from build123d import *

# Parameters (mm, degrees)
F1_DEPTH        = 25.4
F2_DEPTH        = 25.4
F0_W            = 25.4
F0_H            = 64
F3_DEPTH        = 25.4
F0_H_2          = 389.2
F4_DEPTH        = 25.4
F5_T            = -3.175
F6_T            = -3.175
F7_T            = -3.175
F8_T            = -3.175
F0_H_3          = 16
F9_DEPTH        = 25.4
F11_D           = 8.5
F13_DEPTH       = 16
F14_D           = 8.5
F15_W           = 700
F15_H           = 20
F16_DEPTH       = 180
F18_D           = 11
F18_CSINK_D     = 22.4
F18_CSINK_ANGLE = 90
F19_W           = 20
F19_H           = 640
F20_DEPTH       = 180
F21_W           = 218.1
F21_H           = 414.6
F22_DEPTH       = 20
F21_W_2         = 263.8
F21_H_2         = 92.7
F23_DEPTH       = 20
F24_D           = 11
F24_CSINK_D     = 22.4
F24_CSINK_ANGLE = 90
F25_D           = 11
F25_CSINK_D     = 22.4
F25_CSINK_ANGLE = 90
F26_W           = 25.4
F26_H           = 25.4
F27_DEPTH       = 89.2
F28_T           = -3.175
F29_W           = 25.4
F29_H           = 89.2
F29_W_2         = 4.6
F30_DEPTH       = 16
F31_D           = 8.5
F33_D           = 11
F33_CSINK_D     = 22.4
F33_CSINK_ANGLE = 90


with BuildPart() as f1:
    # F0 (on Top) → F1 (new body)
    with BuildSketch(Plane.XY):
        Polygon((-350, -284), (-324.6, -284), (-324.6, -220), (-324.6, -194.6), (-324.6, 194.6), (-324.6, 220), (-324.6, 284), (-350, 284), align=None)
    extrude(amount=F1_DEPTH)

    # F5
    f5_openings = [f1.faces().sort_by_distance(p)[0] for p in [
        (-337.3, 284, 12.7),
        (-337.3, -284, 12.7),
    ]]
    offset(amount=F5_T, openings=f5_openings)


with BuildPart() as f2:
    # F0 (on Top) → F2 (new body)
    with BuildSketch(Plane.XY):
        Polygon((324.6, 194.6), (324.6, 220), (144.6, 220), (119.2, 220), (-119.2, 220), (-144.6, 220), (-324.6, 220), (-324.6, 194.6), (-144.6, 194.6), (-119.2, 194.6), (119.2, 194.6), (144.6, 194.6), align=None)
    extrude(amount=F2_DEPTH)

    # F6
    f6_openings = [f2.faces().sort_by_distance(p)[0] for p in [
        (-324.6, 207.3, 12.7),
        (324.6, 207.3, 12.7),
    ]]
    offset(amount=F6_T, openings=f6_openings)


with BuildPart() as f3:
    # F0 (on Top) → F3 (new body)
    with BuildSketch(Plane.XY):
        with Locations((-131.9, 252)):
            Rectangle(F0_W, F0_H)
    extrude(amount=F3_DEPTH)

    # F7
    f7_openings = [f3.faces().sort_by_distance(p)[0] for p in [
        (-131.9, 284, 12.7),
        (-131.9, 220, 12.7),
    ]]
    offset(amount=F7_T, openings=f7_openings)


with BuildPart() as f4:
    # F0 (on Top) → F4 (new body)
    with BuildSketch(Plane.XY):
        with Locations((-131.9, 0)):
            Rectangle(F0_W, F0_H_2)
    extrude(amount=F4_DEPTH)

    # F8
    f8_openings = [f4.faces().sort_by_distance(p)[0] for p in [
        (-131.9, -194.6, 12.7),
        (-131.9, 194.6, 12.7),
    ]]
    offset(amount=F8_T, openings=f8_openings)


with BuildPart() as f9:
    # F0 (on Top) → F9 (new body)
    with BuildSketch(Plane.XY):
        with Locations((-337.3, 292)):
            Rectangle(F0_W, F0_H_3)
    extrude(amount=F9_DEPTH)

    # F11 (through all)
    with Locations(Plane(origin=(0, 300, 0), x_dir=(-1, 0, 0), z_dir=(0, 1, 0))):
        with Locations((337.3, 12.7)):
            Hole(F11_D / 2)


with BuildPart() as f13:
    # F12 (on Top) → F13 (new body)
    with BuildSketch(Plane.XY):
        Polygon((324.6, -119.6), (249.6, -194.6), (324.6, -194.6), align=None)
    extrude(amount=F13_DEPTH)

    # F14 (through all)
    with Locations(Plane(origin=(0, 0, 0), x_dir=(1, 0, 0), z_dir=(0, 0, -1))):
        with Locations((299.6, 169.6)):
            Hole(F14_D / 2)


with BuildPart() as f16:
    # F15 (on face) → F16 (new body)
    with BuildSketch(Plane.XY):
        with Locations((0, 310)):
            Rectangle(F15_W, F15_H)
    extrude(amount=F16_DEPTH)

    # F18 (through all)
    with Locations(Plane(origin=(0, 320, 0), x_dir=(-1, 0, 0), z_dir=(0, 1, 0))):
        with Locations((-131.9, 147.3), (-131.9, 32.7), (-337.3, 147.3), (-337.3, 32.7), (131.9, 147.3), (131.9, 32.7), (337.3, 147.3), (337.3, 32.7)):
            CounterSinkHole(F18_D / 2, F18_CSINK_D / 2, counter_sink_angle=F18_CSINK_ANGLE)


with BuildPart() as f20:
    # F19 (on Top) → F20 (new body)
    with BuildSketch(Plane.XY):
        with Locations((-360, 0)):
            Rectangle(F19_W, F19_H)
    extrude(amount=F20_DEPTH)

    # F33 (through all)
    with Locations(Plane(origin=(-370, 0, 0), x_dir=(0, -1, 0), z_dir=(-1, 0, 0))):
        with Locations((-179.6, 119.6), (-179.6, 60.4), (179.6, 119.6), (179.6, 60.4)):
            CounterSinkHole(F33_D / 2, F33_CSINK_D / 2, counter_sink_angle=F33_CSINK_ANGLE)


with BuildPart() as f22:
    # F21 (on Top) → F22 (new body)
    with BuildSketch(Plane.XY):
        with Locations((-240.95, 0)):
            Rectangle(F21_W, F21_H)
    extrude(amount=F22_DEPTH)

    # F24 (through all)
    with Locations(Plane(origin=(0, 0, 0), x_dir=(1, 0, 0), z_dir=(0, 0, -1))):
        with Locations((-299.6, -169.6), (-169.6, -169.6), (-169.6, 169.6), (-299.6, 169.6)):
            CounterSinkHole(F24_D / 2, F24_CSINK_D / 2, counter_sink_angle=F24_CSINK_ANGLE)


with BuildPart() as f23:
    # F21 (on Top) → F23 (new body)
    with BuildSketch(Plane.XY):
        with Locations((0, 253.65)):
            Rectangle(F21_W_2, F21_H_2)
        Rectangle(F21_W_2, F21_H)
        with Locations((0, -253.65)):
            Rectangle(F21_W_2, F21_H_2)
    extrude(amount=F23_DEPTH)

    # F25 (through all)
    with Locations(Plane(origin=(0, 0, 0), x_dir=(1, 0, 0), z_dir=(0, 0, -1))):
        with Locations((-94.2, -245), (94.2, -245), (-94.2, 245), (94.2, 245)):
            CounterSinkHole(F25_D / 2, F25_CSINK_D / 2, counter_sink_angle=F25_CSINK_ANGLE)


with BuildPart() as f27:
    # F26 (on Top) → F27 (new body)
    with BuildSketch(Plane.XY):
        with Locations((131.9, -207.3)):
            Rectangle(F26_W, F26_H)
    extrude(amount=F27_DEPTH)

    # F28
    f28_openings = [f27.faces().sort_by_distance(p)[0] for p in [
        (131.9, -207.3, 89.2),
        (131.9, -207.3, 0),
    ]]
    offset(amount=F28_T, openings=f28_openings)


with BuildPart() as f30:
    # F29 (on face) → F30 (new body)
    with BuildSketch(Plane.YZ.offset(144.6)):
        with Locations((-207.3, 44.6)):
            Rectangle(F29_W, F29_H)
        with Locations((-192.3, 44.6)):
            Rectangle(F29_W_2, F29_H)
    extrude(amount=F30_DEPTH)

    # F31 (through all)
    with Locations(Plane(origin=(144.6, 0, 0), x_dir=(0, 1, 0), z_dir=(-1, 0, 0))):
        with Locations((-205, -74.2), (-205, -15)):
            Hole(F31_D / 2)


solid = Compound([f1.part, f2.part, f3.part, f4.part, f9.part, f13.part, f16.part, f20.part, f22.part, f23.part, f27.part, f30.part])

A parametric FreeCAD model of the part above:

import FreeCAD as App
import Part
import Sketcher
from FreeCAD import Vector
Q = App.Units.Quantity


def faces_at(feature, points):
    """Names of the faces that lie closest to the given points."""
    faces = feature.Shape.Faces
    near = lambda p: min(range(len(faces)), key=lambda i: faces[i].distToShape(Part.Vertex(*p))[0])
    return sorted({f"Face{near(p) + 1}" for p in points})


def add_polygon(sketch, points):
    """Adds a closed chain of lines whose ends are joined by coincident constraints."""
    first, n = sketch.GeometryCount, len(points)
    for a, b in zip(points, points[1:] + points[:1]):
        sketch.addGeometry(Part.LineSegment(App.Vector(*a, 0), App.Vector(*b, 0)), False)
    for i in range(n):
        sketch.addConstraint(Sketcher.Constraint("Coincident", first + i, 2, first + (i + 1) % n, 1))

doc = App.newDocument("Part")
body = doc.addObject("PartDesign::Body", "Body")

# Sketch on XY plane
sketch1 = body.newObject("Sketcher::SketchObject", "Sketch")
sketch1.AttachmentSupport = (doc.getObject("XY_Plane"), [""])
sketch1.MapMode = "FlatFace"
add_polygon(sketch1, [(-350, -284), (-325, -284), (-325, 284), (-350, 284)])  # lines 0-3
sketch1.addConstraint([
    Sketcher.Constraint("Horizontal", 0),
    Sketcher.Constraint("Vertical", 1),
    Sketcher.Constraint("Horizontal", 2),
    Sketcher.Constraint("Vertical", 3),
    Sketcher.Constraint("DistanceY", 1, 1, 1, 2, Q("568 mm")),
    Sketcher.Constraint("DistanceX", 0, 1, 0, 2, Q("25.4 mm")),
    Sketcher.Constraint("DistanceY", 0, 2, -1, 1, Q("284 mm")),
    Sketcher.Constraint("DistanceX", 2, 2, -1, 1, Q("350 mm")),
])
pad1 = body.newObject("PartDesign::Pad", "Pad")
pad1.Profile = sketch1
pad1.Length = 25.4
doc.recompute()

thickness = body.newObject("PartDesign::Thickness", "Thickness")
thickness.Base = (pad1, faces_at(pad1, [(-337.3, 284, 12.7), (-337.3, -284, 12.7)]))
thickness.Value = 3.175
thickness.Reversed = True
thickness.Join = "Arc"
body2 = doc.addObject("PartDesign::Body", "Body001")

# Sketch on XY plane
sketch2 = body2.newObject("Sketcher::SketchObject", "Sketch001")
sketch2.AttachmentSupport = (doc.getObject("XY_Plane001"), [""])
sketch2.MapMode = "FlatFace"
add_polygon(sketch2, [(325, 195), (325, 220), (-325, 220), (-325, 195)])  # lines 0-3
sketch2.addConstraint([
    Sketcher.Constraint("Vertical", 0),
    Sketcher.Constraint("Horizontal", 1),
    Sketcher.Constraint("Vertical", 2),
    Sketcher.Constraint("Horizontal", 3),
    Sketcher.Constraint("DistanceX", 1, 2, 1, 1, Q("649.2 mm")),
    Sketcher.Constraint("DistanceY", 0, 1, 0, 2, Q("25.4 mm")),
    Sketcher.Constraint("DistanceY", -1, 1, 0, 2, Q("220 mm")),
    Sketcher.Constraint("DistanceX", -1, 1, 0, 2, Q("324.6 mm")),
])
pad2 = body2.newObject("PartDesign::Pad", "Pad001")
pad2.Profile = sketch2
pad2.Length = 25.4
doc.recompute()

thickness2 = body2.newObject("PartDesign::Thickness", "Thickness001")
thickness2.Base = (pad2, faces_at(pad2, [(-324.6, 207.3, 12.7), (324.6, 207.3, 12.7)]))
thickness2.Value = 3.175
thickness2.Reversed = True
thickness2.Join = "Arc"
body3 = doc.addObject("PartDesign::Body", "Body002")

# Sketch on XY plane
sketch3 = body3.newObject("Sketcher::SketchObject", "Sketch002")
sketch3.AttachmentSupport = (doc.getObject("XY_Plane002"), [""])
sketch3.MapMode = "FlatFace"
add_polygon(sketch3, [(-145, 284), (-145, 220), (-119, 220), (-119, 284)])  # lines 0-3
sketch3.addConstraint([
    Sketcher.Constraint("Vertical", 0),
    Sketcher.Constraint("Horizontal", 1),
    Sketcher.Constraint("Vertical", 2),
    Sketcher.Constraint("Horizontal", 3),
    Sketcher.Constraint("DistanceY", 0, 2, 0, 1, Q("64 mm")),
    Sketcher.Constraint("DistanceX", 1, 1, 1, 2, Q("25.4 mm")),
    Sketcher.Constraint("DistanceY", -1, 1, 0, 2, Q("220 mm")),
    Sketcher.Constraint("DistanceX", 0, 2, -1, 1, Q("144.6 mm")),
])
pad3 = body3.newObject("PartDesign::Pad", "Pad002")
pad3.Profile = sketch3
pad3.Length = 25.4
doc.recompute()

thickness3 = body3.newObject("PartDesign::Thickness", "Thickness002")
thickness3.Base = (pad3, faces_at(pad3, [(-131.9, 284, 12.7), (-131.9, 220, 12.7)]))
thickness3.Value = 3.175
thickness3.Reversed = True
thickness3.Join = "Arc"
body4 = doc.addObject("PartDesign::Body", "Body003")

# Sketch on XY plane
sketch4 = body4.newObject("Sketcher::SketchObject", "Sketch003")
sketch4.AttachmentSupport = (doc.getObject("XY_Plane003"), [""])
sketch4.MapMode = "FlatFace"
add_polygon(sketch4, [(-145, 195), (-145, -195), (-119, -195), (-119, 195)])  # lines 0-3
sketch4.addConstraint([
    Sketcher.Constraint("Vertical", 0),
    Sketcher.Constraint("Horizontal", 1),
    Sketcher.Constraint("Vertical", 2),
    Sketcher.Constraint("Horizontal", 3),
    Sketcher.Constraint("DistanceX", 1, 1, 1, 2, Q("25.4 mm")),
    Sketcher.Constraint("DistanceY", 0, 2, 0, 1, Q("389.2 mm")),
    Sketcher.Constraint("DistanceX", 0, 2, -1, 1, Q("144.6 mm")),
    Sketcher.Constraint("DistanceY", 0, 2, -1, 1, Q("194.6 mm")),
])
pad4 = body4.newObject("PartDesign::Pad", "Pad003")
pad4.Profile = sketch4
pad4.Length = 25.4
doc.recompute()

thickness4 = body4.newObject("PartDesign::Thickness", "Thickness003")
thickness4.Base = (pad4, faces_at(pad4, [(-131.9, -194.6, 12.7), (-131.9, 194.6, 12.7)]))
thickness4.Value = 3.175
thickness4.Reversed = True
thickness4.Join = "Arc"
body5 = doc.addObject("PartDesign::Body", "Body004")

# Sketch on XY plane
sketch5 = body5.newObject("Sketcher::SketchObject", "Sketch004")
sketch5.AttachmentSupport = (doc.getObject("XY_Plane004"), [""])
sketch5.MapMode = "FlatFace"
add_polygon(sketch5, [(-350, 300), (-350, 284), (-325, 284), (-325, 300)])  # lines 0-3
sketch5.addConstraint([
    Sketcher.Constraint("Vertical", 0),
    Sketcher.Constraint("Horizontal", 1),
    Sketcher.Constraint("Vertical", 2),
    Sketcher.Constraint("Horizontal", 3),
    Sketcher.Constraint("DistanceY", 0, 2, 0, 1, Q("16 mm")),
    Sketcher.Constraint("DistanceX", 1, 1, 1, 2, Q("25.4 mm")),
    Sketcher.Constraint("DistanceX", 0, 2, -1, 1, Q("350 mm")),
    Sketcher.Constraint("DistanceY", -1, 1, 0, 2, Q("284 mm")),
])
pad5 = body5.newObject("PartDesign::Pad", "Pad004")
pad5.Profile = sketch5
pad5.Length = 25.4

# Sketch on XZ plane
sketch6 = body5.newObject("Sketcher::SketchObject", "Sketch005")
sketch6.AttachmentSupport = (doc.getObject("XZ_Plane004"), [""])
sketch6.MapMode = "FlatFace"
sketch6.AttachmentOffset = App.Placement(Vector(0, 0, -300), App.Rotation())
sketch6.addGeometry(Part.Circle(Vector(-337.3, 12.7, 0), Vector(0, 0, 1), 4.2), False)
sketch6.addConstraint([
    Sketcher.Constraint("Diameter", 0, Q("8.5 mm")),
    Sketcher.Constraint("DistanceX", 0, 3, -1, 1, Q("337.3 mm")),
    Sketcher.Constraint("DistanceY", -1, 1, 0, 3, Q("12.7 mm")),
])
doc.recompute()
hole = body5.newObject("PartDesign::Hole", "Hole")
hole.Profile = sketch6
hole.ThreadType = "None"
hole.Diameter = 8.5
hole.DepthType = "ThroughAll"
hole.Reversed = True
body6 = doc.addObject("PartDesign::Body", "Body005")

# Sketch on XY plane
sketch7 = body6.newObject("Sketcher::SketchObject", "Sketch006")
sketch7.AttachmentSupport = (doc.getObject("XY_Plane005"), [""])
sketch7.MapMode = "FlatFace"
add_polygon(sketch7, [(325, -120), (250, -195), (325, -195)])  # lines 0-2
sketch7.addConstraint([
    Sketcher.Constraint("Horizontal", 1),
    Sketcher.Constraint("Vertical", 2),
    Sketcher.Constraint("Equal", 1, 2),
    Sketcher.Constraint("DistanceX", 1, 1, 1, 2, Q("75 mm")),
    Sketcher.Constraint("DistanceX", -1, 1, 0, 2, Q("249.6 mm")),
    Sketcher.Constraint("DistanceY", 0, 2, -1, 1, Q("194.6 mm")),
])
pad6 = body6.newObject("PartDesign::Pad", "Pad005")
pad6.Profile = sketch7
pad6.Length = 16

# Sketch on XY plane
sketch8 = body6.newObject("Sketcher::SketchObject", "Sketch007")
sketch8.AttachmentSupport = (doc.getObject("XY_Plane005"), [""])
sketch8.MapMode = "FlatFace"
sketch8.addGeometry(Part.Circle(Vector(299.6, -169.6, 0), Vector(0, 0, 1), 4.2), False)
sketch8.addConstraint([
    Sketcher.Constraint("Diameter", 0, Q("8.5 mm")),
    Sketcher.Constraint("DistanceX", -1, 1, 0, 3, Q("299.6 mm")),
    Sketcher.Constraint("DistanceY", 0, 3, -1, 1, Q("169.6 mm")),
])
doc.recompute()
hole2 = body6.newObject("PartDesign::Hole", "Hole001")
hole2.Profile = sketch8
hole2.ThreadType = "None"
hole2.Diameter = 8.5
hole2.DepthType = "ThroughAll"
hole2.Reversed = True
body7 = doc.addObject("PartDesign::Body", "Body006")

# Sketch on XY plane
sketch9 = body7.newObject("Sketcher::SketchObject", "Sketch008")
sketch9.AttachmentSupport = (doc.getObject("XY_Plane006"), [""])
sketch9.MapMode = "FlatFace"
add_polygon(sketch9, [(-350, 320), (-350, 300), (350, 300), (350, 320)])  # lines 0-3
sketch9.addConstraint([
    Sketcher.Constraint("Vertical", 0),
    Sketcher.Constraint("Horizontal", 1),
    Sketcher.Constraint("Vertical", 2),
    Sketcher.Constraint("Horizontal", 3),
    Sketcher.Constraint("DistanceX", 1, 1, 1, 2, Q("700 mm")),
    Sketcher.Constraint("DistanceY", 0, 2, 0, 1, Q("20 mm")),
    Sketcher.Constraint("DistanceX", 0, 2, -1, 1, Q("350 mm")),
    Sketcher.Constraint("DistanceY", -1, 1, 0, 2, Q("300 mm")),
])
pad7 = body7.newObject("PartDesign::Pad", "Pad006")
pad7.Profile = sketch9
pad7.Length = 180

# Sketch on XZ plane
sketch10 = body7.newObject("Sketcher::SketchObject", "Sketch009")
sketch10.AttachmentSupport = (doc.getObject("XZ_Plane006"), [""])
sketch10.MapMode = "FlatFace"
sketch10.AttachmentOffset = App.Placement(Vector(0, 0, -320), App.Rotation())
sketch10.addGeometry([
    Part.Circle(Vector(132, 147, 0), Vector(0, 0, 1), 6),  # 0
    Part.Circle(Vector(132, 33, 0), Vector(0, 0, 1), 6),  # 1
    Part.Circle(Vector(337, 147, 0), Vector(0, 0, 1), 6),  # 2
    Part.Circle(Vector(337, 33, 0), Vector(0, 0, 1), 6),  # 3
    Part.Circle(Vector(-132, 147, 0), Vector(0, 0, 1), 6),  # 4
    Part.Circle(Vector(-132, 33, 0), Vector(0, 0, 1), 6),  # 5
    Part.Circle(Vector(-337, 147, 0), Vector(0, 0, 1), 6),  # 6
    Part.Circle(Vector(-337, 33, 0), Vector(0, 0, 1), 6),  # 7
], False)
sketch10.addConstraint([
    Sketcher.Constraint("Equal", 0, 1),
    Sketcher.Constraint("Equal", 1, 2),
    Sketcher.Constraint("Equal", 2, 3),
    Sketcher.Constraint("Equal", 3, 4),
    Sketcher.Constraint("Equal", 4, 5),
    Sketcher.Constraint("Equal", 5, 6),
    Sketcher.Constraint("Equal", 6, 7),
    Sketcher.Constraint("Symmetric", 0, 3, 4, 3, -2),
    Sketcher.Constraint("Symmetric", 1, 3, 5, 3, -2),
    Sketcher.Constraint("Symmetric", 2, 3, 6, 3, -2),
    Sketcher.Constraint("Symmetric", 3, 3, 7, 3, -2),
    Sketcher.Constraint("Horizontal", 0, 3, 2, 3),
    Sketcher.Constraint("Horizontal", 1, 3, 3, 3),
    Sketcher.Constraint("Vertical", 0, 3, 1, 3),
    Sketcher.Constraint("Vertical", 2, 3, 3, 3),
    Sketcher.Constraint("Diameter", 0, Q("11 mm")),
    Sketcher.Constraint("DistanceX", -1, 1, 0, 3, Q("131.9 mm")),
    Sketcher.Constraint("DistanceY", -1, 1, 0, 3, Q("147.3 mm")),
    Sketcher.Constraint("DistanceY", -1, 1, 1, 3, Q("32.7 mm")),
    Sketcher.Constraint("DistanceX", -1, 1, 2, 3, Q("337.3 mm")),
])
doc.recompute()
hole3 = body7.newObject("PartDesign::Hole", "Hole002")
hole3.Profile = sketch10
hole3.ThreadType = "None"
hole3.Diameter = 11
hole3.DepthType = "ThroughAll"
hole3.HoleCutType = "Countersink"
hole3.HoleCutDiameter = 22.4
hole3.HoleCutCountersinkAngle = 90
hole3.Reversed = True
body8 = doc.addObject("PartDesign::Body", "Body007")

# Sketch on XY plane
sketch11 = body8.newObject("Sketcher::SketchObject", "Sketch010")
sketch11.AttachmentSupport = (doc.getObject("XY_Plane007"), [""])
sketch11.MapMode = "FlatFace"
add_polygon(sketch11, [(-370, 320), (-370, -320), (-350, -320), (-350, 320)])  # lines 0-3
sketch11.addConstraint([
    Sketcher.Constraint("Vertical", 0),
    Sketcher.Constraint("Horizontal", 1),
    Sketcher.Constraint("Vertical", 2),
    Sketcher.Constraint("Horizontal", 3),
    Sketcher.Constraint("DistanceX", 1, 1, 1, 2, Q("20 mm")),
    Sketcher.Constraint("DistanceY", 0, 2, 0, 1, Q("640 mm")),
    Sketcher.Constraint("DistanceX", 0, 2, -1, 1, Q("370 mm")),
    Sketcher.Constraint("DistanceY", 0, 2, -1, 1, Q("320 mm")),
])
pad8 = body8.newObject("PartDesign::Pad", "Pad007")
pad8.Profile = sketch11
pad8.Length = 180

# Sketch on YZ plane
sketch12 = body8.newObject("Sketcher::SketchObject", "Sketch011")
sketch12.AttachmentSupport = (doc.getObject("YZ_Plane007"), [""])
sketch12.MapMode = "FlatFace"
sketch12.AttachmentOffset = App.Placement(Vector(0, 0, -370), App.Rotation())
sketch12.addGeometry([
    Part.Circle(Vector(180, 120, 0), Vector(0, 0, 1), 6),
    Part.Circle(Vector(180, 60, 0), Vector(0, 0, 1), 6),
    Part.Circle(Vector(-180, 120, 0), Vector(0, 0, 1), 6),
    Part.Circle(Vector(-180, 60, 0), Vector(0, 0, 1), 6),
], False)
sketch12.addConstraint([
    Sketcher.Constraint("Equal", 0, 1),
    Sketcher.Constraint("Equal", 1, 2),
    Sketcher.Constraint("Equal", 2, 3),
    Sketcher.Constraint("Symmetric", 0, 3, 2, 3, -2),
    Sketcher.Constraint("Symmetric", 1, 3, 3, 3, -2),
    Sketcher.Constraint("Vertical", 0, 3, 1, 3),
    Sketcher.Constraint("Diameter", 0, Q("11 mm")),
    Sketcher.Constraint("DistanceX", -1, 1, 0, 3, Q("179.6 mm")),
    Sketcher.Constraint("DistanceY", -1, 1, 0, 3, Q("119.6 mm")),
    Sketcher.Constraint("DistanceY", -1, 1, 1, 3, Q("60.4 mm")),
])
doc.recompute()
hole4 = body8.newObject("PartDesign::Hole", "Hole003")
hole4.Profile = sketch12
hole4.ThreadType = "None"
hole4.Diameter = 11
hole4.DepthType = "ThroughAll"
hole4.HoleCutType = "Countersink"
hole4.HoleCutDiameter = 22.4
hole4.HoleCutCountersinkAngle = 90
hole4.Reversed = True
body9 = doc.addObject("PartDesign::Body", "Body008")

# Sketch on XY plane
sketch13 = body9.newObject("Sketcher::SketchObject", "Sketch012")
sketch13.AttachmentSupport = (doc.getObject("XY_Plane008"), [""])
sketch13.MapMode = "FlatFace"
add_polygon(sketch13, [(-350, 207), (-350, -207), (-132, -207), (-132, 207)])  # lines 0-3
sketch13.addConstraint([
    Sketcher.Constraint("Vertical", 0),
    Sketcher.Constraint("Horizontal", 1),
    Sketcher.Constraint("Vertical", 2),
    Sketcher.Constraint("Horizontal", 3),
    Sketcher.Constraint("DistanceX", 1, 1, 1, 2, Q("218.1 mm")),
    Sketcher.Constraint("DistanceY", 0, 2, 0, 1, Q("414.6 mm")),
    Sketcher.Constraint("DistanceX", 0, 2, -1, 1, Q("350 mm")),
    Sketcher.Constraint("DistanceY", 0, 2, -1, 1, Q("207.3 mm")),
])
pad9 = body9.newObject("PartDesign::Pad", "Pad008")
pad9.Profile = sketch13
pad9.Length = 20

# Sketch on XY plane
sketch14 = body9.newObject("Sketcher::SketchObject", "Sketch013")
sketch14.AttachmentSupport = (doc.getObject("XY_Plane008"), [""])
sketch14.MapMode = "FlatFace"
sketch14.addGeometry([
    Part.Circle(Vector(-300, 170, 0), Vector(0, 0, 1), 6),
    Part.Circle(Vector(-170, 170, 0), Vector(0, 0, 1), 6),
    Part.Circle(Vector(-170, -170, 0), Vector(0, 0, 1), 6),
    Part.Circle(Vector(-300, -170, 0), Vector(0, 0, 1), 6),
], False)
sketch14.addConstraint([
    Sketcher.Constraint("Equal", 0, 1),
    Sketcher.Constraint("Equal", 1, 2),
    Sketcher.Constraint("Equal", 2, 3),
    Sketcher.Constraint("Symmetric", 1, 3, 2, 3, -1),
    Sketcher.Constraint("Symmetric", 0, 3, 3, 3, -1),
    Sketcher.Constraint("Horizontal", 0, 3, 1, 3),
    Sketcher.Constraint("Diameter", 0, Q("11 mm")),
    Sketcher.Constraint("DistanceX", 0, 3, 1, 3, Q("130 mm")),
    Sketcher.Constraint("DistanceX", 0, 3, -1, 1, Q("299.6 mm")),
    Sketcher.Constraint("DistanceY", -1, 1, 0, 3, Q("169.6 mm")),
])
doc.recompute()
hole5 = body9.newObject("PartDesign::Hole", "Hole004")
hole5.Profile = sketch14
hole5.ThreadType = "None"
hole5.Diameter = 11
hole5.DepthType = "ThroughAll"
hole5.HoleCutType = "Countersink"
hole5.HoleCutDiameter = 22.4
hole5.HoleCutCountersinkAngle = 90
hole5.Reversed = True
body10 = doc.addObject("PartDesign::Body", "Body009")

# Sketch on XY plane
sketch15 = body10.newObject("Sketcher::SketchObject", "Sketch014")
sketch15.AttachmentSupport = (doc.getObject("XY_Plane009"), [""])
sketch15.MapMode = "FlatFace"
add_polygon(sketch15, [(-132, 300), (-132, -300), (132, -300), (132, 300)])  # lines 0-3
sketch15.addConstraint([
    Sketcher.Constraint("Vertical", 0),
    Sketcher.Constraint("Horizontal", 1),
    Sketcher.Constraint("Vertical", 2),
    Sketcher.Constraint("Horizontal", 3),
    Sketcher.Constraint("Symmetric", 0, 2, 2, 2, -1, 1),
    Sketcher.Constraint("DistanceY", 0, 2, 0, 1, Q("600 mm")),
    Sketcher.Constraint("DistanceX", 1, 1, 1, 2, Q("263.8 mm")),
])
pad10 = body10.newObject("PartDesign::Pad", "Pad009")
pad10.Profile = sketch15
pad10.Length = 20

# Sketch on XY plane
sketch16 = body10.newObject("Sketcher::SketchObject", "Sketch015")
sketch16.AttachmentSupport = (doc.getObject("XY_Plane009"), [""])
sketch16.MapMode = "FlatFace"
sketch16.addGeometry([
    Part.Circle(Vector(-94, 245, 0), Vector(0, 0, 1), 6),
    Part.Circle(Vector(94, 245, 0), Vector(0, 0, 1), 6),
    Part.Circle(Vector(-94, -245, 0), Vector(0, 0, 1), 6),
    Part.Circle(Vector(94, -245, 0), Vector(0, 0, 1), 6),
], False)
sketch16.addConstraint([
    Sketcher.Constraint("Equal", 0, 1),
    Sketcher.Constraint("Equal", 1, 2),
    Sketcher.Constraint("Equal", 2, 3),
    Sketcher.Constraint("Symmetric", 1, 3, 2, 3, -1, 1),
    Sketcher.Constraint("Symmetric", 0, 3, 3, 3, -1, 1),
    Sketcher.Constraint("Symmetric", 0, 3, 1, 3, -2),
    Sketcher.Constraint("Diameter", 0, Q("11 mm")),
    Sketcher.Constraint("DistanceY", -1, 1, 0, 3, Q("245 mm")),
    Sketcher.Constraint("DistanceX", 0, 3, -1, 1, Q("94.2 mm")),
])
doc.recompute()
hole6 = body10.newObject("PartDesign::Hole", "Hole005")
hole6.Profile = sketch16
hole6.ThreadType = "None"
hole6.Diameter = 11
hole6.DepthType = "ThroughAll"
hole6.HoleCutType = "Countersink"
hole6.HoleCutDiameter = 22.4
hole6.HoleCutCountersinkAngle = 90
hole6.Reversed = True
body11 = doc.addObject("PartDesign::Body", "Body010")

# Sketch on XY plane
sketch17 = body11.newObject("Sketcher::SketchObject", "Sketch016")
sketch17.AttachmentSupport = (doc.getObject("XY_Plane010"), [""])
sketch17.MapMode = "FlatFace"
add_polygon(sketch17, [(119, -195), (119, -220), (145, -220), (145, -195)])  # lines 0-3
sketch17.addConstraint([
    Sketcher.Constraint("Vertical", 0),
    Sketcher.Constraint("Horizontal", 1),
    Sketcher.Constraint("Vertical", 2),
    Sketcher.Constraint("Horizontal", 3),
    Sketcher.Constraint("Equal", 3, 0),
    Sketcher.Constraint("DistanceX", 1, 1, 1, 2, Q("25.4 mm")),
    Sketcher.Constraint("DistanceY", 0, 2, -1, 1, Q("220 mm")),
    Sketcher.Constraint("DistanceX", -1, 1, 0, 2, Q("119.2 mm")),
])
pad11 = body11.newObject("PartDesign::Pad", "Pad010")
pad11.Profile = sketch17
pad11.Length = 89.2
doc.recompute()

thickness5 = body11.newObject("PartDesign::Thickness", "Thickness004")
thickness5.Base = (pad11, faces_at(pad11, [(131.9, -207.3, 89.2), (131.9, -207.3, 0)]))
thickness5.Value = 3.175
thickness5.Reversed = True
thickness5.Join = "Arc"
body12 = doc.addObject("PartDesign::Body", "Body011")

# Sketch on YZ plane
sketch18 = body12.newObject("Sketcher::SketchObject", "Sketch017")
sketch18.AttachmentSupport = (doc.getObject("YZ_Plane011"), [""])
sketch18.MapMode = "FlatFace"
sketch18.AttachmentOffset = App.Placement(Vector(0, 0, 144.6), App.Rotation())
add_polygon(sketch18, [(-220, 89), (-220, 0), (-190, 0), (-190, 89)])  # lines 0-3
sketch18.addConstraint([
    Sketcher.Constraint("Vertical", 0),
    Sketcher.Constraint("Horizontal", 1),
    Sketcher.Constraint("Vertical", 2),
    Sketcher.Constraint("Horizontal", 3),
    Sketcher.Constraint("PointOnObject", 0, 2, -1),
    Sketcher.Constraint("DistanceX", 1, 1, 1, 2, Q("30 mm")),
    Sketcher.Constraint("DistanceY", 0, 2, 0, 1, Q("89.2 mm")),
    Sketcher.Constraint("DistanceX", 0, 2, -1, 1, Q("220 mm")),
])
pad12 = body12.newObject("PartDesign::Pad", "Pad011")
pad12.Profile = sketch18
pad12.Length = 16

# Sketch on YZ plane
sketch19 = body12.newObject("Sketcher::SketchObject", "Sketch018")
sketch19.AttachmentSupport = (doc.getObject("YZ_Plane011"), [""])
sketch19.MapMode = "FlatFace"
sketch19.AttachmentOffset = App.Placement(Vector(0, 0, 144.6), App.Rotation())
sketch19.addGeometry([
    Part.Circle(Vector(-205, 74.2, 0), Vector(0, 0, 1), 4.2),
    Part.Circle(Vector(-205, 15, 0), Vector(0, 0, 1), 4.2),
], False)
sketch19.addConstraint([
    Sketcher.Constraint("Equal", 0, 1),
    Sketcher.Constraint("Vertical", 0, 3, 1, 3),
    Sketcher.Constraint("Diameter", 0, Q("8.5 mm")),
    Sketcher.Constraint("DistanceX", 0, 3, -1, 1, Q("205 mm")),
    Sketcher.Constraint("DistanceY", -1, 1, 1, 3, Q("15 mm")),
    Sketcher.Constraint("DistanceY", -1, 1, 0, 3, Q("74.2 mm")),
])
doc.recompute()
hole7 = body12.newObject("PartDesign::Hole", "Hole006")
hole7.Profile = sketch19
hole7.ThreadType = "None"
hole7.Diameter = 8.5
hole7.DepthType = "ThroughAll"
hole7.Reversed = True

doc.recompute()
